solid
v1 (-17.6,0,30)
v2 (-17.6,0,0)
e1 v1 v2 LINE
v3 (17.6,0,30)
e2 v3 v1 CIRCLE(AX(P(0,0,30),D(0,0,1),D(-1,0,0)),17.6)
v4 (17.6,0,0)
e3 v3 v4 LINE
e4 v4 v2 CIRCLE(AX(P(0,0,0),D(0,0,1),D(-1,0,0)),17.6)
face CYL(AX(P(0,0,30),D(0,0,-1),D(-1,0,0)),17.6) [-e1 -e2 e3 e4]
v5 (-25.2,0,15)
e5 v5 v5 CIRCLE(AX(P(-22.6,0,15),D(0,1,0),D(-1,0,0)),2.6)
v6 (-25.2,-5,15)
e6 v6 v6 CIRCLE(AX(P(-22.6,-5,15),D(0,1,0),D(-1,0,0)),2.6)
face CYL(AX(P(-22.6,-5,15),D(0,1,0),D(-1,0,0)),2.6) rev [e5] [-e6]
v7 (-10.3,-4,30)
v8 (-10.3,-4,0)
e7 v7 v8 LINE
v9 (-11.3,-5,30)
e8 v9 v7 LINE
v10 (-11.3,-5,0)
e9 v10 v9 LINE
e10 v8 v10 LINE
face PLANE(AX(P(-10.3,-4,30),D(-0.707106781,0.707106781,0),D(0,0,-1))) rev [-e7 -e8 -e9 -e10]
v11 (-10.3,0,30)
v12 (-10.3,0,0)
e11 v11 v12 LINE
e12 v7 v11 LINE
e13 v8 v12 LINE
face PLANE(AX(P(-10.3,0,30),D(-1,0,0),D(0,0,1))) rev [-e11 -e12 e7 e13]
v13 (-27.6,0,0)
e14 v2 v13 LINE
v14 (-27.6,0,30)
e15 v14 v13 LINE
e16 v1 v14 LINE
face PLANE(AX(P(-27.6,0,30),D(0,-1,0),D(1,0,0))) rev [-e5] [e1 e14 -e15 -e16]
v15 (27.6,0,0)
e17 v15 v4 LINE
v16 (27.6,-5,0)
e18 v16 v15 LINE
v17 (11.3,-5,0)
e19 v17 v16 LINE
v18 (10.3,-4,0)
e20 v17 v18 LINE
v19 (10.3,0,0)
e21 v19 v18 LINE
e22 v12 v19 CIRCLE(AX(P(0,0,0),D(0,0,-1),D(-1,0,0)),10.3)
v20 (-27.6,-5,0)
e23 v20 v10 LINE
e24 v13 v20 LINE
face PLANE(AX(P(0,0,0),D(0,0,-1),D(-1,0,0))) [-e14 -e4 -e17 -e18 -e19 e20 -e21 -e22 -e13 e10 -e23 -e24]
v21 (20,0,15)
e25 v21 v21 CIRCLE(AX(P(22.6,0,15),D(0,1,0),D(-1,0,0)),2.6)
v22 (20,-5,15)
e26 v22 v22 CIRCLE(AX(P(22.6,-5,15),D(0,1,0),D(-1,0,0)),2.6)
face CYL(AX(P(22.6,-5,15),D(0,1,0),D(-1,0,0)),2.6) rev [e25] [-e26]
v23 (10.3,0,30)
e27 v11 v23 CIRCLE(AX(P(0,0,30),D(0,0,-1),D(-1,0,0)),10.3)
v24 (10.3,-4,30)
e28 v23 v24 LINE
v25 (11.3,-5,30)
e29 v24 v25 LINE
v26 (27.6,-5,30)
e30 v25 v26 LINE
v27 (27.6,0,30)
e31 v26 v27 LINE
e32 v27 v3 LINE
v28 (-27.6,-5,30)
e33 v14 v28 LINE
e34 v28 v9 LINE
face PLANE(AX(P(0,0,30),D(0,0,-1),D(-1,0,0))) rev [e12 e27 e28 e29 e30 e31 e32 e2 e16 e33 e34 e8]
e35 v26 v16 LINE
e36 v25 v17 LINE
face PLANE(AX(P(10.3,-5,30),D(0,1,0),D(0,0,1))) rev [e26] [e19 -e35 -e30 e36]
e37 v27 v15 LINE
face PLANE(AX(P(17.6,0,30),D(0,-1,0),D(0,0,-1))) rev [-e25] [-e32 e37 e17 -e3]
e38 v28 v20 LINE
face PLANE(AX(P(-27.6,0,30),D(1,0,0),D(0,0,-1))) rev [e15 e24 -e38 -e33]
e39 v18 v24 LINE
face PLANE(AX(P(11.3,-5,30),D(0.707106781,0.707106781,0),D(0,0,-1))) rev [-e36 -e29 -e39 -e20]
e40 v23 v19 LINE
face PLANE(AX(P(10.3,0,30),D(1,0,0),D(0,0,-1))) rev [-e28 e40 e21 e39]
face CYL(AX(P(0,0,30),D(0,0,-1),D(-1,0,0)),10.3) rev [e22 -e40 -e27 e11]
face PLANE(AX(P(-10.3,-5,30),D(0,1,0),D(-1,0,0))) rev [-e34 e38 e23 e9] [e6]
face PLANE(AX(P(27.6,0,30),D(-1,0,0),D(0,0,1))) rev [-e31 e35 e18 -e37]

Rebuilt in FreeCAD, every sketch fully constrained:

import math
import FreeCAD as App
import Part
import Sketcher
from FreeCAD import Vector


def edges_at(feature, points):
    """Names of the edges that pass closest to the given points."""
    edges = feature.Shape.Edges
    near = lambda p: min(range(len(edges)), key=lambda i: edges[i].distToShape(Part.Vertex(*p))[0])
    return sorted({f"Edge{near(p) + 1}" for p in points})

doc = App.newDocument("Part")
body = doc.addObject("PartDesign::Body", "Body")

# Sketch on XY plane
sketch1 = body.newObject("Sketcher::SketchObject", "Sketch")
sketch1.AttachmentSupport = (doc.getObject("XY_Plane"), [""])
sketch1.MapMode = "FlatFace"
sketch1.addGeometry(Part.LineSegment(Vector(-17.6, 0, 0), Vector(-27.6, 0, 0)), False)
sketch1.addGeometry(Part.LineSegment(Vector(-27.6, 0, 0), Vector(-27.6, -5, 0)), False)
sketch1.addGeometry(Part.LineSegment(Vector(-27.6, -5, 0), Vector(-10.3, -5, 0)), False)
sketch1.addGeometry(Part.LineSegment(Vector(-10.3, -5, 0), Vector(-10.3, 0, 0)), False)
sketch1.addGeometry(Part.ArcOfCircle(Part.Circle(Vector(0, 0, 0), Vector(0, 0, 1), 10.3), math.radians(0), math.radians(180)), False)
sketch1.addGeometry(Part.LineSegment(Vector(10.3, 0, 0), Vector(10.3, -5, 0)), False)
sketch1.addGeometry(Part.LineSegment(Vector(10.3, -5, 0), Vector(27.6, -5, 0)), False)
sketch1.addGeometry(Part.LineSegment(Vector(27.6, -5, 0), Vector(27.6, 0, 0)), False)
sketch1.addGeometry(Part.LineSegment(Vector(27.6, 0, 0), Vector(17.6, 0, 0)), False)
sketch1.addGeometry(Part.ArcOfCircle(Part.Circle(Vector(0, 0, 0), Vector(0, 0, 1), 17.6), math.radians(0), math.radians(180)), False)
sketch1.addConstraint(Sketcher.Constraint("Coincident", 0, 2, 1, 1))
sketch1.addConstraint(Sketcher.Constraint("Coincident", 1, 2, 2, 1))
sketch1.addConstraint(Sketcher.Constraint("Coincident", 2, 2, 3, 1))
sketch1.addConstraint(Sketcher.Constraint("Tangent", 3, 2, 4, 2))
sketch1.addConstraint(Sketcher.Constraint("Tangent", 4, 1, 5, 1))
sketch1.addConstraint(Sketcher.Constraint("Coincident", 5, 2, 6, 1))
sketch1.addConstraint(Sketcher.Constraint("Coincident", 6, 2, 7, 1))
sketch1.addConstraint(Sketcher.Constraint("Coincident", 7, 2, 8, 1))
sketch1.addConstraint(Sketcher.Constraint("Coincident", 8, 2, 9, 1))
sketch1.addConstraint(Sketcher.Constraint("Coincident", 9, 2, 0, 1))
sketch1.addConstraint(Sketcher.Constraint("Horizontal", 0))
sketch1.addConstraint(Sketcher.Constraint("Vertical", 1))
sketch1.addConstraint(Sketcher.Constraint("Horizontal", 2))
sketch1.addConstraint(Sketcher.Constraint("Vertical", 3))
sketch1.addConstraint(Sketcher.Constraint("Vertical", 5))
sketch1.addConstraint(Sketcher.Constraint("Horizontal", 6))
sketch1.addConstraint(Sketcher.Constraint("Vertical", 7))
sketch1.addConstraint(Sketcher.Constraint("Horizontal", 8))
sketch1.addConstraint(Sketcher.Constraint("Coincident", 4, 3, -1, 1))
sketch1.addConstraint(Sketcher.Constraint("Coincident", 9, 3, -1, 1))
sketch1.addConstraint(Sketcher.Constraint("Symmetric", 0, 2, 7, 2, -1, 1))
sketch1.addConstraint(Sketcher.Constraint("PointOnObject", 0, 2, -1))
sketch1.addConstraint(Sketcher.Constraint("Horizontal", 2, 2, 5, 2))
sketch1.addConstraint(Sketcher.Constraint("Radius", 4, 10.3))
sketch1.addConstraint(Sketcher.Constraint("Radius", 9, 17.6))
sketch1.addConstraint(Sketcher.Constraint("DistanceX", 0, 2, 0, 1, 10.0))
sketch1.addConstraint(Sketcher.Constraint("DistanceY", 1, 2, 1, 1, 5.0))
pad1 = body.newObject("PartDesign::Pad", "Pad")
pad1.Profile = sketch1
pad1.Length = 30

# Sketch on XZ plane
sketch2 = body.newObject("Sketcher::SketchObject", "Sketch001")
sketch2.AttachmentSupport = (doc.getObject("XZ_Plane"), [""])
sketch2.MapMode = "FlatFace"
sketch2.addGeometry(Part.Circle(Vector(-22.6, 15, 0), Vector(0, 0, 1), 2.6), False)
sketch2.addGeometry(Part.Circle(Vector(22.6, 15, 0), Vector(0, 0, 1), 2.6), False)
sketch2.addConstraint(Sketcher.Constraint("Equal", 0, 1))
sketch2.addConstraint(Sketcher.Constraint("Symmetric", 0, 3, 1, 3, -2))
sketch2.addConstraint(Sketcher.Constraint("Diameter", 0, 5.2))
sketch2.addConstraint(Sketcher.Constraint("DistanceY", -1, 1, 0, 3, 15.0))
sketch2.addConstraint(Sketcher.Constraint("DistanceX", 0, 3, -1, 1, 22.6))
pocket1 = body.newObject("PartDesign::Pocket", "Pocket")
pocket1.Profile = sketch2
pocket1.Type = "ThroughAll"
pocket1.Reversed = True
doc.recompute()

chamfer = body.newObject("PartDesign::Chamfer", "Chamfer")
chamfer.Base = (pocket1, edges_at(pocket1, [(-10.3, -5, 15), (10.3, -5, 15)]))
chamfer.Size = 1

doc.recompute()
